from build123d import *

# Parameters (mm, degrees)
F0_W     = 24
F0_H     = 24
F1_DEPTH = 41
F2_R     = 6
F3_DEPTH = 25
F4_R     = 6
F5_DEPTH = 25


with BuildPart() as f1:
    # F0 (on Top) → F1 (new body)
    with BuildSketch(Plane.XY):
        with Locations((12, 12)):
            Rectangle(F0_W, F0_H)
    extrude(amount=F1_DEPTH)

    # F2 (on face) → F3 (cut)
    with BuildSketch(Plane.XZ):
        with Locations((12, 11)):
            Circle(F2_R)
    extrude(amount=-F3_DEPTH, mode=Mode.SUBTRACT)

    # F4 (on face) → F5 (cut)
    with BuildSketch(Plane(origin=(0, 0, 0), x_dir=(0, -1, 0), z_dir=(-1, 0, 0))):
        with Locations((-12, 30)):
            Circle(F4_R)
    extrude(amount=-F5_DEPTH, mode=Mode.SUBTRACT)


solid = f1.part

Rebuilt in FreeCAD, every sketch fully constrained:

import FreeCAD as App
import Part
import Sketcher

V = App.Vector

doc = App.newDocument("Part")
body = doc.addObject("PartDesign::Body", "Body")

# Sketch on XY plane
sketch1 = doc.addObject("Sketcher::SketchObject", "Sketch")
body.addObject(sketch1)
sketch1.AttachmentSupport = (doc.XY_Plane, [""])
sketch1.MapMode = "FlatFace"
sketch1.addGeometry([
    Part.LineSegment(V(0, 24, 0), V(0, 0, 0)),
    Part.LineSegment(V(0, 0, 0), V(24, 0, 0)),
    Part.LineSegment(V(24, 0, 0), V(24, 24, 0)),
    Part.LineSegment(V(24, 24, 0), V(0, 24, 0)),
], False)
sketch1.addConstraint([
    Sketcher.Constraint("Coincident", 0, 2, 1, 1),
    Sketcher.Constraint("Coincident", 1, 2, 2, 1),
    Sketcher.Constraint("Coincident", 2, 2, 3, 1),
    Sketcher.Constraint("Coincident", 3, 2, 0, 1),
    Sketcher.Constraint("Vertical", 0),
    Sketcher.Constraint("Horizontal", 1),
    Sketcher.Constraint("Vertical", 2),
    Sketcher.Constraint("Horizontal", 3),
    Sketcher.Constraint("Coincident", 0, 2, -1, 1),
    Sketcher.Constraint("Equal", 3, 0),
    Sketcher.Constraint("DistanceX", 1, 1, 1, 2, 24.0),
])
pad1 = doc.addObject("PartDesign::Pad", "Pad")
body.addObject(pad1)
pad1.Profile = sketch1
pad1.Length = 41

# Sketch on XZ plane
sketch2 = doc.addObject("Sketcher::SketchObject", "Sketch001")
body.addObject(sketch2)
sketch2.AttachmentSupport = (doc.XZ_Plane, [""])
sketch2.MapMode = "FlatFace"
sketch2.addGeometry(Part.Circle(V(12, 11, 0), V(0, 0, 1), 6), False)
sketch2.addConstraint([
    Sketcher.Constraint("Diameter", 0, 12.0),
    Sketcher.Constraint("DistanceX", -1, 1, 0, 3, 12.0),
    Sketcher.Constraint("DistanceY", -1, 1, 0, 3, 11.0),
])
pocket1 = doc.addObject("PartDesign::Pocket", "Pocket")
body.addObject(pocket1)
pocket1.Profile = sketch2
pocket1.Length = 25

# Sketch on YZ plane
sketch3 = doc.addObject("Sketcher::SketchObject", "Sketch002")
body.addObject(sketch3)
sketch3.AttachmentSupport = (doc.YZ_Plane, [""])
sketch3.MapMode = "FlatFace"
sketch3.addGeometry(Part.Circle(V(12, 30, 0), V(0, 0, 1), 6), False)
sketch3.addConstraint([
    Sketcher.Constraint("Diameter", 0, 12.0),
    Sketcher.Constraint("DistanceX", -1, 1, 0, 3, 12.0),
    Sketcher.Constraint("DistanceY", -1, 1, 0, 3, 30.0),
])
pocket2 = doc.addObject("PartDesign::Pocket", "Pocket001")
body.addObject(pocket2)
pocket2.Profile = sketch3
pocket2.Length = 25
pocket2.Reversed = True

doc.recompute()
